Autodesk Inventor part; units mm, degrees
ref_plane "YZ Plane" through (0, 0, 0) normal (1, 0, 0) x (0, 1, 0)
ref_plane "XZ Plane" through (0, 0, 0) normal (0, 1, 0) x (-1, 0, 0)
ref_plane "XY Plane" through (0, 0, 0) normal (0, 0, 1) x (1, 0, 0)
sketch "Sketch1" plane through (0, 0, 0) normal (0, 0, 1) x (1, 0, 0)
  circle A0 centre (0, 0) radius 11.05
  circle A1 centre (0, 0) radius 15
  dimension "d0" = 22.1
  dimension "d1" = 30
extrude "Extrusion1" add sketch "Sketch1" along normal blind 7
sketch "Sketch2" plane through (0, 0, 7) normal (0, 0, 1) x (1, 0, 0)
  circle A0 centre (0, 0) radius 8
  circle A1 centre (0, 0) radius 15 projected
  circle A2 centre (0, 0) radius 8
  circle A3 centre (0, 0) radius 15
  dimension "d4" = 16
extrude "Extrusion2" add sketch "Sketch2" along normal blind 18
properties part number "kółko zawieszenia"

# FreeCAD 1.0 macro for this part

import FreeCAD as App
import Part
import Sketcher

V = App.Vector

doc = App.newDocument("Part")
body = doc.addObject("PartDesign::Body", "Body")

sketch1 = body.newObject("Sketcher::SketchObject", "Sketch")
sketch1.AttachmentSupport = (doc.getObject("XY_Plane"), [""])
sketch1.MapMode = "FlatFace"
sketch1.addGeometry(Part.Circle(V(0, 0, 0), V(0, 0, 1), 15), False)
sketch1.addGeometry(Part.Circle(V(0, 0, 0), V(0, 0, 1), 11.05), False)
sketch1.addConstraint(Sketcher.Constraint("Coincident", 0, 3, -1, 1))
sketch1.addConstraint(Sketcher.Constraint("Coincident", 1, 3, -1, 1))
sketch1.addConstraint(Sketcher.Constraint("Diameter", 0, 30.0))
sketch1.addConstraint(Sketcher.Constraint("Diameter", 1, 22.1))
pad1 = body.newObject("PartDesign::Pad", "Pad")
pad1.Profile = sketch1
pad1.Length = 7

sketch2 = body.newObject("Sketcher::SketchObject", "Sketch001")
sketch2.AttachmentSupport = (doc.getObject("XY_Plane"), [""])
sketch2.MapMode = "FlatFace"
sketch2.AttachmentOffset = App.Placement(V(0, 0, 7), App.Rotation())
sketch2.addGeometry(Part.Circle(V(0, 0, 0), V(0, 0, 1), 15), False)
sketch2.addGeometry(Part.Circle(V(0, 0, 0), V(0, 0, 1), 8), False)
sketch2.addConstraint(Sketcher.Constraint("Coincident", 0, 3, -1, 1))
sketch2.addConstraint(Sketcher.Constraint("Coincident", 1, 3, -1, 1))
sketch2.addConstraint(Sketcher.Constraint("Diameter", 1, 16.0))
sketch2.addConstraint(Sketcher.Constraint("Diameter", 0, 30.0))
pad2 = body.newObject("PartDesign::Pad", "Pad001")
pad2.Profile = sketch2
pad2.Length = 18

doc.recompute()
